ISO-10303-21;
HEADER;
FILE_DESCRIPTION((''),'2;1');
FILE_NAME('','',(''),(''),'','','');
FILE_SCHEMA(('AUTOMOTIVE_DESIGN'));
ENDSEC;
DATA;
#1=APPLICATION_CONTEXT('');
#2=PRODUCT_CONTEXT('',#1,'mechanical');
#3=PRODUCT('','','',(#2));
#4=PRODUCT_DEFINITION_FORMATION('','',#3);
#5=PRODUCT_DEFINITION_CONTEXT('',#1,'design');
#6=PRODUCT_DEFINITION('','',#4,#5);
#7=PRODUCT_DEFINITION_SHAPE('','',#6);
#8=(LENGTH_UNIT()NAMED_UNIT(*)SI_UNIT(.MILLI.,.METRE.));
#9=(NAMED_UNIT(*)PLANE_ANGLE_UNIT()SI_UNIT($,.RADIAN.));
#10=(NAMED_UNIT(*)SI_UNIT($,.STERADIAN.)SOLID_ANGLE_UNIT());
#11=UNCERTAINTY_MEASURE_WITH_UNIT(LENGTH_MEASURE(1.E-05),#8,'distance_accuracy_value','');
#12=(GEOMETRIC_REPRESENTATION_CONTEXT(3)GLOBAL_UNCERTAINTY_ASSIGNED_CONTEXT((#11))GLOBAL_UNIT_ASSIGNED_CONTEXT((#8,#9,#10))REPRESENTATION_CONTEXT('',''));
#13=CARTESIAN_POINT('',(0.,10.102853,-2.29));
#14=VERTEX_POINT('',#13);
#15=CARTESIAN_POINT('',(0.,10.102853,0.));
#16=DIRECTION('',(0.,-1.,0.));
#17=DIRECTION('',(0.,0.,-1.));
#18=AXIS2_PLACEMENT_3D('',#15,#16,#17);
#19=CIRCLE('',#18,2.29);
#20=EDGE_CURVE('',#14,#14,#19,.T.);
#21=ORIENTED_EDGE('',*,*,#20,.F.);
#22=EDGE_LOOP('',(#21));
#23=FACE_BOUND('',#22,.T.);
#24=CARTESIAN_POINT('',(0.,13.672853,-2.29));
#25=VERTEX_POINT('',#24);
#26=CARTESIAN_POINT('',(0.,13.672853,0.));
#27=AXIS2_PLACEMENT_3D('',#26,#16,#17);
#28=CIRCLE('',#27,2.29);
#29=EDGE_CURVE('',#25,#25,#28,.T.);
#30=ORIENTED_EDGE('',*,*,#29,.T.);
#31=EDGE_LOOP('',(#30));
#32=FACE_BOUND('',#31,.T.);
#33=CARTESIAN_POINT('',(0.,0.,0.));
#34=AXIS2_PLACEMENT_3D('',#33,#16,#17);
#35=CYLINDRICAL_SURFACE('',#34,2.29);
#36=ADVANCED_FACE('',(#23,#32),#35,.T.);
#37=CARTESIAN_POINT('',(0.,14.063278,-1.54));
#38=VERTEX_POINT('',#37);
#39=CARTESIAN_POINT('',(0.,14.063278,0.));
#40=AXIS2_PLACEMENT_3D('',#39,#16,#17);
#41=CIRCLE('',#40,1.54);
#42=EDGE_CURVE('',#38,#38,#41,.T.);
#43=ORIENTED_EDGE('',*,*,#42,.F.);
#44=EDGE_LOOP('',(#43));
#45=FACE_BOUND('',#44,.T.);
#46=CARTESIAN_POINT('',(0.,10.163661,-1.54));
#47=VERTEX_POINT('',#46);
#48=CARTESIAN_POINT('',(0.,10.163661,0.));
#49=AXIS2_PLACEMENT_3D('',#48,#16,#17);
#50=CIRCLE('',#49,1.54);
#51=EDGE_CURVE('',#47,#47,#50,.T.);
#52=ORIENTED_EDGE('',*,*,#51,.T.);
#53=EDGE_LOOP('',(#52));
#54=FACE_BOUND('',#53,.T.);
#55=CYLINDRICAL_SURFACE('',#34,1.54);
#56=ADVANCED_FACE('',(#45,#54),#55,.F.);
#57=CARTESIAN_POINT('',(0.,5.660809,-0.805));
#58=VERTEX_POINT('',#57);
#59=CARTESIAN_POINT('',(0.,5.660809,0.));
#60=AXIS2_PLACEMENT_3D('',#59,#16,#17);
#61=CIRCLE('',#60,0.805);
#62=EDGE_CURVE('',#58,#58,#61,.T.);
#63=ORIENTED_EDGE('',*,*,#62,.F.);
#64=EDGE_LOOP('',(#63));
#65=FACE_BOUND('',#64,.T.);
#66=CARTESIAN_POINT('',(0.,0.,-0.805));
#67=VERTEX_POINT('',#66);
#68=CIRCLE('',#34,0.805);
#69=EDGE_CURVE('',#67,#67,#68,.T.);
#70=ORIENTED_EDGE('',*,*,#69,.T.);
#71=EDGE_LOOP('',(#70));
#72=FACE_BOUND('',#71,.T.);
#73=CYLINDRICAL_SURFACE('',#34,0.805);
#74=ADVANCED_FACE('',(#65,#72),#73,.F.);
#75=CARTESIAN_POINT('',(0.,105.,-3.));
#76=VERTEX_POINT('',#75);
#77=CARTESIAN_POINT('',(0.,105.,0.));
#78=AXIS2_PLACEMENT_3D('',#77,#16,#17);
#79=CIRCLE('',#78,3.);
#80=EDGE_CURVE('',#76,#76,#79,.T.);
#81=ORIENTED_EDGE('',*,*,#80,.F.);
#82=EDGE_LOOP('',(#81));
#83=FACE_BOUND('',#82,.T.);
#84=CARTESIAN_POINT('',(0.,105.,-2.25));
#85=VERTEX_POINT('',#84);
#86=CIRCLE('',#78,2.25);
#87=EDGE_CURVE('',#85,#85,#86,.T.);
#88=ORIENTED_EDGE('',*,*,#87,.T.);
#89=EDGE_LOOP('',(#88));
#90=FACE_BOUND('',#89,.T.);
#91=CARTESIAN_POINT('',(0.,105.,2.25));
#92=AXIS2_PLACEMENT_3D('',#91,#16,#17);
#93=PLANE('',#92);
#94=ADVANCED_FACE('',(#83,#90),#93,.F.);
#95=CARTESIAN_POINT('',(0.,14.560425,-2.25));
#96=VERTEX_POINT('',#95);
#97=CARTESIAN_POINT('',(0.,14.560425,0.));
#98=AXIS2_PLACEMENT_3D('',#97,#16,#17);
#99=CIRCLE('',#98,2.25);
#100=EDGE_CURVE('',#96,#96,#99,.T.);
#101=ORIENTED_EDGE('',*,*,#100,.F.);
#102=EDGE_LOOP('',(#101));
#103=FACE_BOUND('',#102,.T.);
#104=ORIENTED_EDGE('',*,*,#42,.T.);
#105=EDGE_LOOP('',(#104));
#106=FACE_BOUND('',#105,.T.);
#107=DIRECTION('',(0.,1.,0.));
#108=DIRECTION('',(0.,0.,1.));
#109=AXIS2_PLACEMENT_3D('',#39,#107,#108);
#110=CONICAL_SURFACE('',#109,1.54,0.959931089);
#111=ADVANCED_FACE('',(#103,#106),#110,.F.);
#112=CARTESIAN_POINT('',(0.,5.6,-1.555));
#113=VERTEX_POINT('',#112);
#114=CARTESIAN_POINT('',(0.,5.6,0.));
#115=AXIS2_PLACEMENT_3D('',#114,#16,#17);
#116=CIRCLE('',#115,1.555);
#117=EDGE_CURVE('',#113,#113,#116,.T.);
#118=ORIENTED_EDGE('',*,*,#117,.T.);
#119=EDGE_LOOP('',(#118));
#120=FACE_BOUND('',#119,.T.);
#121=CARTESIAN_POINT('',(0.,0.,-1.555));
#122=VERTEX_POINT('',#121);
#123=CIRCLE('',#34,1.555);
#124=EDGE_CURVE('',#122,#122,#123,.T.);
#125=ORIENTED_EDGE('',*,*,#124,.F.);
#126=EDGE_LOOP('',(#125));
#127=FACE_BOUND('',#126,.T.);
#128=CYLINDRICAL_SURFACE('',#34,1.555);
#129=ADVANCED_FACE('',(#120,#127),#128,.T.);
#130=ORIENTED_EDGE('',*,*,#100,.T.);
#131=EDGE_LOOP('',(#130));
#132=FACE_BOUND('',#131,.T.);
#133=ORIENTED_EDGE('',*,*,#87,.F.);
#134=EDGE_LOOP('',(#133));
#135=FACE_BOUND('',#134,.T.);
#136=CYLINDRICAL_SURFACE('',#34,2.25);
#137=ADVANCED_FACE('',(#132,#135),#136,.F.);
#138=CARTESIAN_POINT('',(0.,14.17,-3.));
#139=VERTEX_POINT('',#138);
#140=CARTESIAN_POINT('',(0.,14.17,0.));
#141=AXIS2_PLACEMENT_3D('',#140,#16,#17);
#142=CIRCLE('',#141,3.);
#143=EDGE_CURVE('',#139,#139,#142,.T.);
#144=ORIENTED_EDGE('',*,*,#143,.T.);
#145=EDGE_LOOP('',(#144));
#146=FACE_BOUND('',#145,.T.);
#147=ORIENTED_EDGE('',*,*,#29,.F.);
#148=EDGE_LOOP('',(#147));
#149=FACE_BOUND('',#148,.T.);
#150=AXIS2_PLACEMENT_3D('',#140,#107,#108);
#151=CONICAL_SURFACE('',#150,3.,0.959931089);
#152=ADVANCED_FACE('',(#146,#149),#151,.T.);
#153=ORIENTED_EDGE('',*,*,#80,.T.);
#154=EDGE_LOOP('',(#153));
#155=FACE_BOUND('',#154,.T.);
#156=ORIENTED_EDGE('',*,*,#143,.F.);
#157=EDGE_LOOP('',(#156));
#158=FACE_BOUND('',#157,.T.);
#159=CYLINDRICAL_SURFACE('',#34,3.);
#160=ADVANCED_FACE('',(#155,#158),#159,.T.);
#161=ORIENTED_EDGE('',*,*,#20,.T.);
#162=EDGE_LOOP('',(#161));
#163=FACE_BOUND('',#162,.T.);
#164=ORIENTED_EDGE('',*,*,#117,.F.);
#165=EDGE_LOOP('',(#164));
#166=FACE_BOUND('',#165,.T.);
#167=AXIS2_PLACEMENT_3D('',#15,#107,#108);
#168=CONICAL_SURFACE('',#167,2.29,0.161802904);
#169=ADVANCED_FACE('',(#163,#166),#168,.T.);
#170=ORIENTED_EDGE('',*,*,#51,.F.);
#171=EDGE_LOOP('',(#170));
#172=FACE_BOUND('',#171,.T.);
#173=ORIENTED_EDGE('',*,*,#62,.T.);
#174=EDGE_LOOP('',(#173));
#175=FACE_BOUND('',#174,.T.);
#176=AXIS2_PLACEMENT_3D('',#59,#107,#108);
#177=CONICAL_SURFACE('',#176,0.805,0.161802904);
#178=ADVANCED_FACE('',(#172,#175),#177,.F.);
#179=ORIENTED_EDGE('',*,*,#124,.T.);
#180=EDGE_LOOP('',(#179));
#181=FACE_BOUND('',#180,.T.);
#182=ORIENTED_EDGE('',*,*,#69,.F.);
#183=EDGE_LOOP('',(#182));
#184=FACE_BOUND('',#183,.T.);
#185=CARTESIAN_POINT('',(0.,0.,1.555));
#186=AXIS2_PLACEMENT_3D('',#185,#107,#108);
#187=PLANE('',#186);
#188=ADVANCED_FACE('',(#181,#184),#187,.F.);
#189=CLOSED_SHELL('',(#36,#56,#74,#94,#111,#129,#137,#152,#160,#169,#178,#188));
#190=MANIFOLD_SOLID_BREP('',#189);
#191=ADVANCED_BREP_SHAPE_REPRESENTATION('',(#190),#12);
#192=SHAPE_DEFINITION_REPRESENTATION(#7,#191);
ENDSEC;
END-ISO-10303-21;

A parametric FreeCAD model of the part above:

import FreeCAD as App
import Part
import Sketcher
from FreeCAD import Vector
Q = App.Units.Quantity

doc = App.newDocument("Part")
params = doc.addObject("Spreadsheet::Sheet", "Params")
for row, (alias, value) in enumerate([
    ("sketch1_width", "5.6 mm"),
    ("sketch1_width2", "90.83 mm"),
    ("sketch1_width3", "3.57 mm"),
    ("sketch1_height", "0.75 mm"),
    ("revolution_angle", "360 deg"),
], start=1):
    params.set(f"A{row}", alias)
    params.set(f"B{row}", "=" + value)
    params.setAlias(f"B{row}", alias)

body = doc.addObject("PartDesign::Body", "Body")

# Sketch on YZ plane
sketch1 = body.newObject("Sketcher::SketchObject", "Sketch")
sketch1.AttachmentSupport = (doc.getObject("YZ_Plane"), [""])
sketch1.MapMode = "FlatFace"
sketch1.addGeometry([
    Part.LineSegment(Vector(5.6, 1.6, 0), Vector(0, 1.6, 0)),  # 0
    Part.LineSegment(Vector(0, 1.6, 0), Vector(0, 0.8, 0)),  # 1
    Part.LineSegment(Vector(0, 0.8, 0), Vector(5.7, 0.8, 0)),  # 2
    Part.LineSegment(Vector(5.7, 0.8, 0), Vector(10.2, 1.5, 0)),  # 3
    Part.LineSegment(Vector(10.2, 1.5, 0), Vector(14.1, 1.5, 0)),  # 4
    Part.LineSegment(Vector(14.1, 1.5, 0), Vector(14.6, 2.2, 0)),  # 5
    Part.LineSegment(Vector(14.6, 2.2, 0), Vector(105, 2.2, 0)),  # 6
    Part.LineSegment(Vector(105, 2.2, 0), Vector(105, 3, 0)),  # 7
    Part.LineSegment(Vector(105, 3, 0), Vector(14.2, 3, 0)),  # 8
    Part.LineSegment(Vector(14.2, 3, 0), Vector(13.7, 2.3, 0)),  # 9
    Part.LineSegment(Vector(13.7, 2.3, 0), Vector(10.1, 2.3, 0)),  # 10
    Part.LineSegment(Vector(10.1, 2.3, 0), Vector(5.6, 1.6, 0)),  # 11
], False)
sketch1.addConstraint([
    Sketcher.Constraint("Coincident", 0, 2, 1, 1),
    Sketcher.Constraint("Coincident", 1, 2, 2, 1),
    Sketcher.Constraint("Coincident", 2, 2, 3, 1),
    Sketcher.Constraint("Coincident", 3, 2, 4, 1),
    Sketcher.Constraint("Coincident", 4, 2, 5, 1),
    Sketcher.Constraint("Coincident", 5, 2, 6, 1),
    Sketcher.Constraint("Coincident", 6, 2, 7, 1),
    Sketcher.Constraint("Coincident", 7, 2, 8, 1),
    Sketcher.Constraint("Coincident", 8, 2, 9, 1),
    Sketcher.Constraint("Coincident", 9, 2, 10, 1),
    Sketcher.Constraint("Coincident", 10, 2, 11, 1),
    Sketcher.Constraint("Coincident", 11, 2, 0, 1),
    Sketcher.Constraint("Horizontal", 0),
    Sketcher.Constraint("Vertical", 1),
    Sketcher.Constraint("Horizontal", 2),
    Sketcher.Constraint("Horizontal", 4),
    Sketcher.Constraint("Horizontal", 6),
    Sketcher.Constraint("Vertical", 7),
    Sketcher.Constraint("Horizontal", 8),
    Sketcher.Constraint("Horizontal", 10),
    Sketcher.Constraint("PointOnObject", 0, 2, -2),
    Sketcher.Constraint("Parallel", 5, 9),
    Sketcher.Constraint("Parallel", 3, 11),
    Sketcher.Constraint("Equal", 1, 7),
    Sketcher.Constraint("Equal", 5, 9),
    Sketcher.Constraint("Angle", 5, Q("55 deg")),
    Sketcher.Constraint("DistanceX", 0, 2, 0, 1, Q("5.6 mm")),
    Sketcher.Constraint("DistanceX", -1, 1, 6, 2, Q("105 mm")),
    Sketcher.Constraint("DistanceY", -1, 1, 7, 2, Q("3 mm")),
    Sketcher.Constraint("DistanceX", 8, 2, 8, 1, Q("90.83 mm")),
    Sketcher.Constraint("DistanceX", 10, 2, 10, 1, Q("3.57 mm")),
    Sketcher.Constraint("DistanceY", 1, 2, 1, 1, Q("0.75 mm")),
    Sketcher.Constraint("DistanceY", -1, 1, 3, 2, Q("1.54 mm")),
    Sketcher.Constraint("DistanceY", -1, 1, 0, 2, Q("1.555 mm")),
    Sketcher.Constraint("DistanceX", 2, 1, 2, 2, Q("5.660809 mm")),
    Sketcher.Constraint("DistanceX", 4, 1, 4, 2, Q("3.899616 mm")),
])
sketch1.setExpression("Constraints[26]", "Params.sketch1_width")
sketch1.setExpression("Constraints[29]", "Params.sketch1_width2")
sketch1.setExpression("Constraints[30]", "Params.sketch1_width3")
sketch1.setExpression("Constraints[31]", "Params.sketch1_height")
revolution = body.newObject("PartDesign::Revolution", "Revolution")
revolution.Profile = sketch1
revolution.ReferenceAxis = (sketch1, ["H_Axis"])
revolution.setExpression("Angle", "Params.revolution_angle")

doc.recompute()
